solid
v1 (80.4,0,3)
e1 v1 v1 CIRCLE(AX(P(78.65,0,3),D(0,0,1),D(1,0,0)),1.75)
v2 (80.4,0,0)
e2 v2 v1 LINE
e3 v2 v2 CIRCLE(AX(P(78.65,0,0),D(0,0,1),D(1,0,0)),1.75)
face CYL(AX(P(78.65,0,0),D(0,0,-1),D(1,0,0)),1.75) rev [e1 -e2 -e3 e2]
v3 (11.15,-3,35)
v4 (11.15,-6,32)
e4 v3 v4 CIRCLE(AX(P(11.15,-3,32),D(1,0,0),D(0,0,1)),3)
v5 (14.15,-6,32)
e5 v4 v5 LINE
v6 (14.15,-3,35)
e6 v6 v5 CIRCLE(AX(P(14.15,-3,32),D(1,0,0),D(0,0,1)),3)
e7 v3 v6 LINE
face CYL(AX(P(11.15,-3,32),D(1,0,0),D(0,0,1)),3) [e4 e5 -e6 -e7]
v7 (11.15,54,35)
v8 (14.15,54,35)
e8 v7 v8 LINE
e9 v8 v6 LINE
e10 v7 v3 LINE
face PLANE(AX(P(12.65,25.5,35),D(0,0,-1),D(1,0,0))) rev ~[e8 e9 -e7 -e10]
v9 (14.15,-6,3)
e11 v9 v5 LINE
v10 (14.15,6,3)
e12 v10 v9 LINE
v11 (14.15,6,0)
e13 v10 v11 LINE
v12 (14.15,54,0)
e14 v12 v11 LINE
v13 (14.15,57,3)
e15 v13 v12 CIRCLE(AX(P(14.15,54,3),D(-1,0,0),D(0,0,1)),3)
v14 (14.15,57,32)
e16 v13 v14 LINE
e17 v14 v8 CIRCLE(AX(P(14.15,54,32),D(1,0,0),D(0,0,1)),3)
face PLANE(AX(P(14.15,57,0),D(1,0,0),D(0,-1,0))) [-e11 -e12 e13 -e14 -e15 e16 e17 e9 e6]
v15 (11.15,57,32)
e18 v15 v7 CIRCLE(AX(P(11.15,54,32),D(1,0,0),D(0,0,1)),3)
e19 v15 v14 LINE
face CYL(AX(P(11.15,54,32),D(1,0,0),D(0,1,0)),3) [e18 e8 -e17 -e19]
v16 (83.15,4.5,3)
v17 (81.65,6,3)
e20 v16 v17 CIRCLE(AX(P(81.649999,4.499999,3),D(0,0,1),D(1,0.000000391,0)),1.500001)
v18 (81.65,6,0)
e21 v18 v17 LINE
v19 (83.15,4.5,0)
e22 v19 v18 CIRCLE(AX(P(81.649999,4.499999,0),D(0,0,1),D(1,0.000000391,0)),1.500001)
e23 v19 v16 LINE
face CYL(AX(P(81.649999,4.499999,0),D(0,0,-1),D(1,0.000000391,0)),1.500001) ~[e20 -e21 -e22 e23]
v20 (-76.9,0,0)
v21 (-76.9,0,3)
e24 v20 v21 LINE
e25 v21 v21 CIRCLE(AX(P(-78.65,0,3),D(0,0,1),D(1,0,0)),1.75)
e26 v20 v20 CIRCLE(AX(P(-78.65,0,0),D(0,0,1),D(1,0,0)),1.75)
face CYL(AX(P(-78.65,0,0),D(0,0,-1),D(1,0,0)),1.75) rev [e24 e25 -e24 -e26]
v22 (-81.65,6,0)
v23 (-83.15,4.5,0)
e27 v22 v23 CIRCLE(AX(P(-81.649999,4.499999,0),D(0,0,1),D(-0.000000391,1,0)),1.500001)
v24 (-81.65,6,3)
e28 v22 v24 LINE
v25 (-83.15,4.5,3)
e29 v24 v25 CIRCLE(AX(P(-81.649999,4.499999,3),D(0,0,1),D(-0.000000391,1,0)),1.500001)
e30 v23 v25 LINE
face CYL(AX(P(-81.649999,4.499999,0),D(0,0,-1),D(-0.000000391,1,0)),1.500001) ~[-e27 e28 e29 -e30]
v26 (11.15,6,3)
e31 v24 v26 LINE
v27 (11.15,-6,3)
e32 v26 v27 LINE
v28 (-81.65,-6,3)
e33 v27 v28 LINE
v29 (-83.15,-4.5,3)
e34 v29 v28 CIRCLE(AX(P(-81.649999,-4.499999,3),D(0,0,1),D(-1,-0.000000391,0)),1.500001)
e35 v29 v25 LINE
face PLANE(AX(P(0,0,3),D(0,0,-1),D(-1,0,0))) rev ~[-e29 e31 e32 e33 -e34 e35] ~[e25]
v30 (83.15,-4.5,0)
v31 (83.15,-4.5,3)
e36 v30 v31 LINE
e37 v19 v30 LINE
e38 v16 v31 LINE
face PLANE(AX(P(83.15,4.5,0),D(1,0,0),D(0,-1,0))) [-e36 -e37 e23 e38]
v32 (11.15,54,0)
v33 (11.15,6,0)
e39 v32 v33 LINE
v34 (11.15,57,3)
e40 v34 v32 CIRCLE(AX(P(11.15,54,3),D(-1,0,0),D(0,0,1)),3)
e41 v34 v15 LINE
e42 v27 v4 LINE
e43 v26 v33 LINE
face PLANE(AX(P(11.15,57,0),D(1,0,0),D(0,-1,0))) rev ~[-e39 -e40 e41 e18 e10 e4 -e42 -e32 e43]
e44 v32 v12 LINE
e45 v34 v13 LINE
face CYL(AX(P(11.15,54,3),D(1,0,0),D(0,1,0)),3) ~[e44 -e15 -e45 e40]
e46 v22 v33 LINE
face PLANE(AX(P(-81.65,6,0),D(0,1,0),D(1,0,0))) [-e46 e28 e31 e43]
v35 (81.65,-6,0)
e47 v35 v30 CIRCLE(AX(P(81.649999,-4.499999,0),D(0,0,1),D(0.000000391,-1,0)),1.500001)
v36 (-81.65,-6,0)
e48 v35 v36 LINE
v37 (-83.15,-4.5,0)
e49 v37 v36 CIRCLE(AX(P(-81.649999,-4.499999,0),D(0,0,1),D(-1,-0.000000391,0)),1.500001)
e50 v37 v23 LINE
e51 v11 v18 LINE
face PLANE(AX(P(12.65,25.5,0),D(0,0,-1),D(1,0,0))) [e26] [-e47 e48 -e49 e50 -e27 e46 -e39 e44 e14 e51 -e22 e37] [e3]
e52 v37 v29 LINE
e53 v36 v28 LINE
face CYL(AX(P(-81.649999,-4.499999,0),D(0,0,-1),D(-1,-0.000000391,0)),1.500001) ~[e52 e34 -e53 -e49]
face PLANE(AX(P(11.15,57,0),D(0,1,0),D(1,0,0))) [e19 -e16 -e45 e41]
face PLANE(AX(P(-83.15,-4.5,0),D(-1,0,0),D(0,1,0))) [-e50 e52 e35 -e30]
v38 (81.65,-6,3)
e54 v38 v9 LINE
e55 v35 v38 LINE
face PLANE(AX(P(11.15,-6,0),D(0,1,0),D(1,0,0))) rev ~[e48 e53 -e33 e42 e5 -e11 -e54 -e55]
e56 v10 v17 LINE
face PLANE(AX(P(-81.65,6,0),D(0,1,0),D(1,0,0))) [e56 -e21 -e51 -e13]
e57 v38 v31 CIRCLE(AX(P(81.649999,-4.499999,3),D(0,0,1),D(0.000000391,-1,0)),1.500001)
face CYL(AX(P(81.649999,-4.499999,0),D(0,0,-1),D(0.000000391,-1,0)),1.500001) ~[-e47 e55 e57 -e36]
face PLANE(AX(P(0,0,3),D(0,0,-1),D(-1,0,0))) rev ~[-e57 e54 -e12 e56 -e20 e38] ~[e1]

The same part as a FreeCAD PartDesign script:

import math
import FreeCAD as App
import Part
import Sketcher

V = App.Vector
Q = App.Units.Quantity


def edges_at(feature, points):
    """Names of the edges that pass closest to the given points."""
    edges = feature.Shape.Edges
    near = lambda p: min(range(len(edges)), key=lambda i: edges[i].distToShape(Part.Vertex(*p))[0])
    return sorted({f"Edge{near(p) + 1}" for p in points})


def add_polygon(sketch, points):
    """Adds a closed chain of lines whose ends are joined by coincident constraints."""
    first, n = sketch.GeometryCount, len(points)
    for a, b in zip(points, points[1:] + points[:1]):
        sketch.addGeometry(Part.LineSegment(App.Vector(*a, 0), App.Vector(*b, 0)), False)
    for i in range(n):
        sketch.addConstraint(Sketcher.Constraint("Coincident", first + i, 2, first + (i + 1) % n, 1))

doc = App.newDocument("Part")
body = doc.addObject("PartDesign::Body", "Body")

sketch1 = body.newObject("Sketcher::SketchObject", "Sketch")
sketch1.AttachmentSupport = (doc.getObject("XY_Plane"), [""])
sketch1.MapMode = "FlatFace"
sketch1.addGeometry(Part.LineSegment(V(81.65, 6, 0), V(-81.65, 6, 0)), False)
sketch1.addGeometry(Part.ArcOfCircle(Part.Circle(V(-81.649999, 4.499999, 0), V(0, 0, 1), 1.500001), math.radians(90.000022), math.radians(179.999978)), False)
sketch1.addGeometry(Part.LineSegment(V(-83.15, 4.5, 0), V(-83.15, -4.5, 0)), False)
sketch1.addGeometry(Part.ArcOfCircle(Part.Circle(V(-81.649999, -4.499999, 0), V(0, 0, 1), 1.500001), math.radians(-179.999978), math.radians(-90.000022)), False)
sketch1.addGeometry(Part.LineSegment(V(-81.65, -6, 0), V(81.65, -6, 0)), False)
sketch1.addGeometry(Part.ArcOfCircle(Part.Circle(V(81.649999, -4.499999, 0), V(0, 0, 1), 1.500001), math.radians(-89.999978), math.radians(-0.000022)), False)
sketch1.addGeometry(Part.LineSegment(V(83.15, -4.5, 0), V(83.15, 4.5, 0)), False)
sketch1.addGeometry(Part.ArcOfCircle(Part.Circle(V(81.649999, 4.499999, 0), V(0, 0, 1), 1.500001), math.radians(0.000022), math.radians(89.999978)), False)
sketch1.addGeometry(Part.Circle(V(78.65, 0, 0), V(0, 0, 1), 1.75), False)
sketch1.addGeometry(Part.Circle(V(-78.65, 0, 0), V(0, 0, 1), 1.75), False)
sketch1.addConstraint(Sketcher.Constraint("Tangent", 0, 2, 1, 1))
sketch1.addConstraint(Sketcher.Constraint("Tangent", 1, 2, 2, 1))
sketch1.addConstraint(Sketcher.Constraint("Tangent", 2, 2, 3, 1))
sketch1.addConstraint(Sketcher.Constraint("Tangent", 3, 2, 4, 1))
sketch1.addConstraint(Sketcher.Constraint("Tangent", 4, 2, 5, 1))
sketch1.addConstraint(Sketcher.Constraint("Tangent", 5, 2, 6, 1))
sketch1.addConstraint(Sketcher.Constraint("Tangent", 6, 2, 7, 1))
sketch1.addConstraint(Sketcher.Constraint("Tangent", 7, 2, 0, 1))
sketch1.addConstraint(Sketcher.Constraint("Horizontal", 0))
sketch1.addConstraint(Sketcher.Constraint("Vertical", 2))
sketch1.addConstraint(Sketcher.Constraint("Horizontal", 4))
sketch1.addConstraint(Sketcher.Constraint("Vertical", 6))
sketch1.addConstraint(Sketcher.Constraint("Equal", 1, 3))
sketch1.addConstraint(Sketcher.Constraint("Equal", 3, 5))
sketch1.addConstraint(Sketcher.Constraint("Equal", 5, 7))
sketch1.addConstraint(Sketcher.Constraint("Equal", 8, 9))
sketch1.addConstraint(Sketcher.Constraint("Symmetric", 1, 3, 5, 3, -1, 1))
sketch1.addConstraint(Sketcher.Constraint("Symmetric", 8, 3, 9, 3, -1, 1))
sketch1.addConstraint(Sketcher.Constraint("PointOnObject", 8, 3, -1))
sketch1.addConstraint(Sketcher.Constraint("Diameter", 8, Q("3.5 mm")))
sketch1.addConstraint(Sketcher.Constraint("Radius", 1, Q("1.500001 mm")))
sketch1.addConstraint(Sketcher.Constraint("DistanceY", 2, 2, 2, 1, Q("9 mm")))
sketch1.addConstraint(Sketcher.Constraint("DistanceX", 0, 2, 0, 1, Q("163.3 mm")))
sketch1.addConstraint(Sketcher.Constraint("DistanceX", 8, 3, 5, 3, Q("2.999999 mm")))
pad1 = body.newObject("PartDesign::Pad", "Pad")
pad1.Profile = sketch1
pad1.Length = 3

sketch2 = body.newObject("Sketcher::SketchObject", "Sketch001")
sketch2.AttachmentSupport = (doc.getObject("XY_Plane"), [""])
sketch2.MapMode = "FlatFace"
add_polygon(sketch2, [(11.15, -6), (11.15, 57), (14.15, 57), (14.15, -6)])
sketch2.addConstraint(Sketcher.Constraint("Vertical", 0))
sketch2.addConstraint(Sketcher.Constraint("Horizontal", 1))
sketch2.addConstraint(Sketcher.Constraint("Vertical", 2))
sketch2.addConstraint(Sketcher.Constraint("Horizontal", 3))
sketch2.addConstraint(Sketcher.Constraint("DistanceX", 1, 1, 1, 2, Q("3 mm")))
sketch2.addConstraint(Sketcher.Constraint("DistanceY", 0, 1, 0, 2, Q("63 mm")))
sketch2.addConstraint(Sketcher.Constraint("DistanceY", -1, 1, 0, 2, Q("57 mm")))
sketch2.addConstraint(Sketcher.Constraint("DistanceX", -1, 1, 0, 2, Q("11.15 mm")))
pad2 = body.newObject("PartDesign::Pad", "Pad001")
pad2.Profile = sketch2
pad2.Length = 35
doc.recompute()

fillet = body.newObject("PartDesign::Fillet", "Fillet")
fillet.Base = (pad2, edges_at(pad2, [(12.65, -6, 35), (12.65, 57, 35), (12.65, 57, 0)]))
fillet.Radius = 3

doc.recompute()
